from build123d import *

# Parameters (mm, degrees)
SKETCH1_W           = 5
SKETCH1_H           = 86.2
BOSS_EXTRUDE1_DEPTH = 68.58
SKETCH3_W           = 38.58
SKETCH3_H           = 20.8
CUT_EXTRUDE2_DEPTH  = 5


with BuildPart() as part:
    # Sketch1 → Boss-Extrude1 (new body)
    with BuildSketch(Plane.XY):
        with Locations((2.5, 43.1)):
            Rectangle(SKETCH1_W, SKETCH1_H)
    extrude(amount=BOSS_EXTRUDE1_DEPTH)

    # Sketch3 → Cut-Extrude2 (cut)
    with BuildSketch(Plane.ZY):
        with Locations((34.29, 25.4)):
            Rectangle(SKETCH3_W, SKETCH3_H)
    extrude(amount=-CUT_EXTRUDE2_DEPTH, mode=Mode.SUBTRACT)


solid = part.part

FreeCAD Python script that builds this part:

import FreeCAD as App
import Part
import Sketcher
from FreeCAD import Vector

doc = App.newDocument("Part")
params = doc.addObject("Spreadsheet::Sheet", "Params")
for row, (alias, value) in enumerate([
    ("sketch1_width", "5 mm"),
    ("sketch1_height", "86.2 mm"),
    ("pad1_length", "68.58 mm"),
    ("sketch2_width", "20.8 mm"),
    ("sketch2_height", "38.58 mm"),
    ("pocket1_length", "5 mm"),
], start=1):
    params.set(f"A{row}", alias)
    params.set(f"B{row}", "=" + value)
    params.setAlias(f"B{row}", alias)

body = doc.addObject("PartDesign::Body", "Body")

# Sketch on XY plane
sketch1 = body.newObject("Sketcher::SketchObject", "Sketch")
sketch1.AttachmentSupport = (doc.getObject("XY_Plane"), [""])
sketch1.MapMode = "FlatFace"
sketch1.addGeometry(Part.LineSegment(Vector(0, 86, 0), Vector(0, 0, 0)), False)
sketch1.addGeometry(Part.LineSegment(Vector(0, 0, 0), Vector(5, 0, 0)), False)
sketch1.addGeometry(Part.LineSegment(Vector(5, 0, 0), Vector(5, 86, 0)), False)
sketch1.addGeometry(Part.LineSegment(Vector(5, 86, 0), Vector(0, 86, 0)), False)
sketch1.addConstraint(Sketcher.Constraint("Coincident", 0, 2, 1, 1))
sketch1.addConstraint(Sketcher.Constraint("Coincident", 1, 2, 2, 1))
sketch1.addConstraint(Sketcher.Constraint("Coincident", 2, 2, 3, 1))
sketch1.addConstraint(Sketcher.Constraint("Coincident", 3, 2, 0, 1))
sketch1.addConstraint(Sketcher.Constraint("Vertical", 0))
sketch1.addConstraint(Sketcher.Constraint("Horizontal", 1))
sketch1.addConstraint(Sketcher.Constraint("Vertical", 2))
sketch1.addConstraint(Sketcher.Constraint("Horizontal", 3))
sketch1.addConstraint(Sketcher.Constraint("Coincident", 0, 2, -1, 1))
sketch1.addConstraint(Sketcher.Constraint("DistanceX", 1, 1, 1, 2, 5.0))
sketch1.addConstraint(Sketcher.Constraint("DistanceY", 0, 2, 0, 1, 86.2))
sketch1.setExpression("Constraints[9]", "Params.sketch1_width")
sketch1.setExpression("Constraints[10]", "Params.sketch1_height")
pad1 = body.newObject("PartDesign::Pad", "Pad")
pad1.Profile = sketch1
pad1.setExpression("Length", "Params.pad1_length")

# Sketch on YZ plane
sketch2 = body.newObject("Sketcher::SketchObject", "Sketch001")
sketch2.AttachmentSupport = (doc.getObject("YZ_Plane"), [""])
sketch2.MapMode = "FlatFace"
sketch2.addGeometry(Part.LineSegment(Vector(36, 15, 0), Vector(15, 15, 0)), False)
sketch2.addGeometry(Part.LineSegment(Vector(15, 15, 0), Vector(15, 54, 0)), False)
sketch2.addGeometry(Part.LineSegment(Vector(15, 54, 0), Vector(36, 54, 0)), False)
sketch2.addGeometry(Part.LineSegment(Vector(36, 54, 0), Vector(36, 15, 0)), False)
sketch2.addConstraint(Sketcher.Constraint("Coincident", 0, 2, 1, 1))
sketch2.addConstraint(Sketcher.Constraint("Coincident", 1, 2, 2, 1))
sketch2.addConstraint(Sketcher.Constraint("Coincident", 2, 2, 3, 1))
sketch2.addConstraint(Sketcher.Constraint("Coincident", 3, 2, 0, 1))
sketch2.addConstraint(Sketcher.Constraint("Horizontal", 0))
sketch2.addConstraint(Sketcher.Constraint("Vertical", 1))
sketch2.addConstraint(Sketcher.Constraint("Horizontal", 2))
sketch2.addConstraint(Sketcher.Constraint("Vertical", 3))
sketch2.addConstraint(Sketcher.Constraint("DistanceX", 0, 2, 0, 1, 20.8))
sketch2.addConstraint(Sketcher.Constraint("DistanceX", -1, 1, 0, 2, 15.0))
sketch2.addConstraint(Sketcher.Constraint("DistanceY", -1, 1, 0, 2, 15.0))
sketch2.addConstraint(Sketcher.Constraint("DistanceY", 1, 1, 1, 2, 38.58))
sketch2.setExpression("Constraints[8]", "Params.sketch2_width")
sketch2.setExpression("Constraints[11]", "Params.sketch2_height")
pocket1 = body.newObject("PartDesign::Pocket", "Pocket")
pocket1.Profile = sketch2
pocket1.setExpression("Length", "Params.pocket1_length")
pocket1.Reversed = True

doc.recompute()
